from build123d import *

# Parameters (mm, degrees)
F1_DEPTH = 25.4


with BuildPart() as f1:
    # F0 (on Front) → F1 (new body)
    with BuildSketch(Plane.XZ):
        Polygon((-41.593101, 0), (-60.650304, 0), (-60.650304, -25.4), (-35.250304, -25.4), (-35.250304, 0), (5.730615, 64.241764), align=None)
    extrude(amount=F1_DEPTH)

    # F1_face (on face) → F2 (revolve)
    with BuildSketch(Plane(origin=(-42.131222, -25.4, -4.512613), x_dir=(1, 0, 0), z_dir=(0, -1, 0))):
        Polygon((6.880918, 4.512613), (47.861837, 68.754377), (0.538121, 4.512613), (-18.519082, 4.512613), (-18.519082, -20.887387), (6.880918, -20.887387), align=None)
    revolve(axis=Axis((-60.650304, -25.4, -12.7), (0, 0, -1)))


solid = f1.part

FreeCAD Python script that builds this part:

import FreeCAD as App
import Part
import Sketcher

V = App.Vector
Q = App.Units.Quantity


def add_polygon(sketch, points):
    """Adds a closed chain of lines whose ends are joined by coincident constraints."""
    first, n = sketch.GeometryCount, len(points)
    for a, b in zip(points, points[1:] + points[:1]):
        sketch.addGeometry(Part.LineSegment(App.Vector(*a, 0), App.Vector(*b, 0)), False)
    for i in range(n):
        sketch.addConstraint(Sketcher.Constraint("Coincident", first + i, 2, first + (i + 1) % n, 1))

doc = App.newDocument("Part")
body = doc.addObject("PartDesign::Body", "Body")

# Sketch on XZ plane
sketch1 = body.newObject("Sketcher::SketchObject", "Sketch")
sketch1.AttachmentSupport = (doc.getObject("XZ_Plane"), [""])
sketch1.MapMode = "FlatFace"
add_polygon(sketch1, [(-42, 0), (-61, 0), (-61, -25), (-35, -25), (-35, 0), (6, 64)])  # lines 0-5
sketch1.addConstraint([
    Sketcher.Constraint("Horizontal", 0),
    Sketcher.Constraint("Vertical", 1),
    Sketcher.Constraint("Horizontal", 2),
    Sketcher.Constraint("Vertical", 3),
    Sketcher.Constraint("PointOnObject", 0, 2, -1),
    Sketcher.Constraint("PointOnObject", 3, 2, -1),
    Sketcher.Constraint("Equal", 2, 1),
    Sketcher.Constraint("DistanceX", 2, 1, 2, 2, Q("1 in")),
    Sketcher.Constraint("Distance", 4, Q("3 in")),
    Sketcher.Constraint("DistanceX", 5, 2, -1, 1, Q("41.593101 mm")),
    Sketcher.Constraint("Distance", 5, Q("79.790591 mm")),
    Sketcher.Constraint("DistanceX", 0, 2, 0, 1, Q("19.057203 mm")),
])
pad1 = body.newObject("PartDesign::Pad", "Pad")
pad1.Profile = sketch1
pad1.Length = Q("1 in")

# Sketch on XZ plane
sketch2 = body.newObject("Sketcher::SketchObject", "Sketch001")
sketch2.AttachmentSupport = (doc.getObject("XZ_Plane"), [""])
sketch2.MapMode = "FlatFace"
sketch2.AttachmentOffset = App.Placement(V(0, 0, 1 * 25.4), App.Rotation())
add_polygon(sketch2, [(-35, 0), (6, 64), (-42, 0), (-61, 0), (-61, -25), (-35, -25)])  # lines 0-5
sketch2.addGeometry(Part.LineSegment(V(-61, 64, 0), V(-61, -25, 0)), True)  # axis
sketch2.addConstraint([
    Sketcher.Constraint("Horizontal", 2),
    Sketcher.Constraint("Vertical", 3),
    Sketcher.Constraint("Horizontal", 4),
    Sketcher.Constraint("Vertical", 5),
    Sketcher.Constraint("Vertical", 6),
    Sketcher.Constraint("Coincident", 6, 2, 3, 2),
    Sketcher.Constraint("PointOnObject", 1, 2, -1),
    Sketcher.Constraint("PointOnObject", 5, 2, -1),
    Sketcher.Constraint("Horizontal", 0, 2, 6, 1),
    Sketcher.Constraint("Equal", 4, 3),
    Sketcher.Constraint("DistanceX", 4, 1, 4, 2, Q("1 in")),
    Sketcher.Constraint("Distance", 0, Q("3 in")),
    Sketcher.Constraint("DistanceX", 1, 2, -1, 1, Q("41.593101 mm")),
    Sketcher.Constraint("Distance", 1, Q("79.790591 mm")),
    Sketcher.Constraint("DistanceX", 2, 2, 2, 1, Q("19.057203 mm")),
])
revolution = body.newObject("PartDesign::Revolution", "Revolution")
revolution.Profile = sketch2
revolution.ReferenceAxis = (sketch2, ["Axis0"])
revolution.Angle = 360

doc.recompute()
